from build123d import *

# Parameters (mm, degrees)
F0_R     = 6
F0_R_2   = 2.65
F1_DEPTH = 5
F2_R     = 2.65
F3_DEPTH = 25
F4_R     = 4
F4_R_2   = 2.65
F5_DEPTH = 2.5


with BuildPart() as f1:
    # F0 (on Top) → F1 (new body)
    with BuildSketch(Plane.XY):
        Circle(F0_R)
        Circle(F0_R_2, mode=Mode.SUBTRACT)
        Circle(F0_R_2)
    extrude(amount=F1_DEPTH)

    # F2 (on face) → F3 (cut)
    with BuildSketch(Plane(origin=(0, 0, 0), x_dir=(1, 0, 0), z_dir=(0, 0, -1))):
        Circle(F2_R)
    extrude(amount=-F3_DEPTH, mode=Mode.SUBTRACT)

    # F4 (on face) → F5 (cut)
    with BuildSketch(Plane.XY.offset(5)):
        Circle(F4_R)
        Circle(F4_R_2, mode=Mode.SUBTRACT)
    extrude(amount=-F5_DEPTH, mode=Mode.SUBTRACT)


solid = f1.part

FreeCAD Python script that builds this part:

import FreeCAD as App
import Part
import Sketcher
from FreeCAD import Vector

doc = App.newDocument("Part")
params = doc.addObject("Spreadsheet::Sheet", "Params")
for row, (alias, value) in enumerate([
    ("sketch1_diameter", "12 mm"),
    ("pad1_length", "5 mm"),
    ("sketch2_diameter", "5.3 mm"),
    ("pocket1_length", "25 mm"),
    ("sketch3_diameter", "8 mm"),
    ("sketch3_diameter2", "5.3 mm"),
    ("pocket2_length", "2.5 mm"),
], start=1):
    params.set(f"A{row}", alias)
    params.set(f"B{row}", "=" + value)
    params.setAlias(f"B{row}", alias)

body = doc.addObject("PartDesign::Body", "Body")

# Sketch on XY plane
sketch1 = doc.addObject("Sketcher::SketchObject", "Sketch")
body.addObject(sketch1)
sketch1.AttachmentSupport = (doc.XY_Plane, [""])
sketch1.MapMode = "FlatFace"
sketch1.addGeometry(Part.Circle(Vector(0, 0, 0), Vector(0, 0, 1), 6), False)
sketch1.addConstraint(Sketcher.Constraint("Coincident", 0, 3, -1, 1))
sketch1.addConstraint(Sketcher.Constraint("Diameter", 0, 12.0))
sketch1.setExpression("Constraints[1]", "Params.sketch1_diameter")
pad1 = doc.addObject("PartDesign::Pad", "Pad")
body.addObject(pad1)
pad1.Profile = sketch1
pad1.setExpression("Length", "Params.pad1_length")

# Sketch on XY plane
sketch2 = doc.addObject("Sketcher::SketchObject", "Sketch001")
body.addObject(sketch2)
sketch2.AttachmentSupport = (doc.XY_Plane, [""])
sketch2.MapMode = "FlatFace"
sketch2.addGeometry(Part.Circle(Vector(0, 0, 0), Vector(0, 0, 1), 2.65), False)
sketch2.addConstraint(Sketcher.Constraint("Coincident", 0, 3, -1, 1))
sketch2.addConstraint(Sketcher.Constraint("Diameter", 0, 5.3))
sketch2.setExpression("Constraints[1]", "Params.sketch2_diameter")
pocket1 = doc.addObject("PartDesign::Pocket", "Pocket")
body.addObject(pocket1)
pocket1.Profile = sketch2
pocket1.setExpression("Length", "Params.pocket1_length")
pocket1.Reversed = True

# Sketch on XY plane
sketch3 = doc.addObject("Sketcher::SketchObject", "Sketch002")
body.addObject(sketch3)
sketch3.AttachmentSupport = (doc.XY_Plane, [""])
sketch3.MapMode = "FlatFace"
sketch3.AttachmentOffset = App.Placement(Vector(0, 0, 5), App.Rotation())
sketch3.addGeometry(Part.Circle(Vector(0, 0, 0), Vector(0, 0, 1), 4), False)
sketch3.addGeometry(Part.Circle(Vector(0, 0, 0), Vector(0, 0, 1), 2.65), False)
sketch3.addConstraint(Sketcher.Constraint("Coincident", 0, 3, -1, 1))
sketch3.addConstraint(Sketcher.Constraint("Coincident", 1, 3, -1, 1))
sketch3.addConstraint(Sketcher.Constraint("Diameter", 0, 8.0))
sketch3.addConstraint(Sketcher.Constraint("Diameter", 1, 5.3))
sketch3.setExpression("Constraints[2]", "Params.sketch3_diameter")
sketch3.setExpression("Constraints[3]", "Params.sketch3_diameter2")
pocket2 = doc.addObject("PartDesign::Pocket", "Pocket001")
body.addObject(pocket2)
pocket2.Profile = sketch3
pocket2.setExpression("Length", "Params.pocket2_length")

doc.recompute()
